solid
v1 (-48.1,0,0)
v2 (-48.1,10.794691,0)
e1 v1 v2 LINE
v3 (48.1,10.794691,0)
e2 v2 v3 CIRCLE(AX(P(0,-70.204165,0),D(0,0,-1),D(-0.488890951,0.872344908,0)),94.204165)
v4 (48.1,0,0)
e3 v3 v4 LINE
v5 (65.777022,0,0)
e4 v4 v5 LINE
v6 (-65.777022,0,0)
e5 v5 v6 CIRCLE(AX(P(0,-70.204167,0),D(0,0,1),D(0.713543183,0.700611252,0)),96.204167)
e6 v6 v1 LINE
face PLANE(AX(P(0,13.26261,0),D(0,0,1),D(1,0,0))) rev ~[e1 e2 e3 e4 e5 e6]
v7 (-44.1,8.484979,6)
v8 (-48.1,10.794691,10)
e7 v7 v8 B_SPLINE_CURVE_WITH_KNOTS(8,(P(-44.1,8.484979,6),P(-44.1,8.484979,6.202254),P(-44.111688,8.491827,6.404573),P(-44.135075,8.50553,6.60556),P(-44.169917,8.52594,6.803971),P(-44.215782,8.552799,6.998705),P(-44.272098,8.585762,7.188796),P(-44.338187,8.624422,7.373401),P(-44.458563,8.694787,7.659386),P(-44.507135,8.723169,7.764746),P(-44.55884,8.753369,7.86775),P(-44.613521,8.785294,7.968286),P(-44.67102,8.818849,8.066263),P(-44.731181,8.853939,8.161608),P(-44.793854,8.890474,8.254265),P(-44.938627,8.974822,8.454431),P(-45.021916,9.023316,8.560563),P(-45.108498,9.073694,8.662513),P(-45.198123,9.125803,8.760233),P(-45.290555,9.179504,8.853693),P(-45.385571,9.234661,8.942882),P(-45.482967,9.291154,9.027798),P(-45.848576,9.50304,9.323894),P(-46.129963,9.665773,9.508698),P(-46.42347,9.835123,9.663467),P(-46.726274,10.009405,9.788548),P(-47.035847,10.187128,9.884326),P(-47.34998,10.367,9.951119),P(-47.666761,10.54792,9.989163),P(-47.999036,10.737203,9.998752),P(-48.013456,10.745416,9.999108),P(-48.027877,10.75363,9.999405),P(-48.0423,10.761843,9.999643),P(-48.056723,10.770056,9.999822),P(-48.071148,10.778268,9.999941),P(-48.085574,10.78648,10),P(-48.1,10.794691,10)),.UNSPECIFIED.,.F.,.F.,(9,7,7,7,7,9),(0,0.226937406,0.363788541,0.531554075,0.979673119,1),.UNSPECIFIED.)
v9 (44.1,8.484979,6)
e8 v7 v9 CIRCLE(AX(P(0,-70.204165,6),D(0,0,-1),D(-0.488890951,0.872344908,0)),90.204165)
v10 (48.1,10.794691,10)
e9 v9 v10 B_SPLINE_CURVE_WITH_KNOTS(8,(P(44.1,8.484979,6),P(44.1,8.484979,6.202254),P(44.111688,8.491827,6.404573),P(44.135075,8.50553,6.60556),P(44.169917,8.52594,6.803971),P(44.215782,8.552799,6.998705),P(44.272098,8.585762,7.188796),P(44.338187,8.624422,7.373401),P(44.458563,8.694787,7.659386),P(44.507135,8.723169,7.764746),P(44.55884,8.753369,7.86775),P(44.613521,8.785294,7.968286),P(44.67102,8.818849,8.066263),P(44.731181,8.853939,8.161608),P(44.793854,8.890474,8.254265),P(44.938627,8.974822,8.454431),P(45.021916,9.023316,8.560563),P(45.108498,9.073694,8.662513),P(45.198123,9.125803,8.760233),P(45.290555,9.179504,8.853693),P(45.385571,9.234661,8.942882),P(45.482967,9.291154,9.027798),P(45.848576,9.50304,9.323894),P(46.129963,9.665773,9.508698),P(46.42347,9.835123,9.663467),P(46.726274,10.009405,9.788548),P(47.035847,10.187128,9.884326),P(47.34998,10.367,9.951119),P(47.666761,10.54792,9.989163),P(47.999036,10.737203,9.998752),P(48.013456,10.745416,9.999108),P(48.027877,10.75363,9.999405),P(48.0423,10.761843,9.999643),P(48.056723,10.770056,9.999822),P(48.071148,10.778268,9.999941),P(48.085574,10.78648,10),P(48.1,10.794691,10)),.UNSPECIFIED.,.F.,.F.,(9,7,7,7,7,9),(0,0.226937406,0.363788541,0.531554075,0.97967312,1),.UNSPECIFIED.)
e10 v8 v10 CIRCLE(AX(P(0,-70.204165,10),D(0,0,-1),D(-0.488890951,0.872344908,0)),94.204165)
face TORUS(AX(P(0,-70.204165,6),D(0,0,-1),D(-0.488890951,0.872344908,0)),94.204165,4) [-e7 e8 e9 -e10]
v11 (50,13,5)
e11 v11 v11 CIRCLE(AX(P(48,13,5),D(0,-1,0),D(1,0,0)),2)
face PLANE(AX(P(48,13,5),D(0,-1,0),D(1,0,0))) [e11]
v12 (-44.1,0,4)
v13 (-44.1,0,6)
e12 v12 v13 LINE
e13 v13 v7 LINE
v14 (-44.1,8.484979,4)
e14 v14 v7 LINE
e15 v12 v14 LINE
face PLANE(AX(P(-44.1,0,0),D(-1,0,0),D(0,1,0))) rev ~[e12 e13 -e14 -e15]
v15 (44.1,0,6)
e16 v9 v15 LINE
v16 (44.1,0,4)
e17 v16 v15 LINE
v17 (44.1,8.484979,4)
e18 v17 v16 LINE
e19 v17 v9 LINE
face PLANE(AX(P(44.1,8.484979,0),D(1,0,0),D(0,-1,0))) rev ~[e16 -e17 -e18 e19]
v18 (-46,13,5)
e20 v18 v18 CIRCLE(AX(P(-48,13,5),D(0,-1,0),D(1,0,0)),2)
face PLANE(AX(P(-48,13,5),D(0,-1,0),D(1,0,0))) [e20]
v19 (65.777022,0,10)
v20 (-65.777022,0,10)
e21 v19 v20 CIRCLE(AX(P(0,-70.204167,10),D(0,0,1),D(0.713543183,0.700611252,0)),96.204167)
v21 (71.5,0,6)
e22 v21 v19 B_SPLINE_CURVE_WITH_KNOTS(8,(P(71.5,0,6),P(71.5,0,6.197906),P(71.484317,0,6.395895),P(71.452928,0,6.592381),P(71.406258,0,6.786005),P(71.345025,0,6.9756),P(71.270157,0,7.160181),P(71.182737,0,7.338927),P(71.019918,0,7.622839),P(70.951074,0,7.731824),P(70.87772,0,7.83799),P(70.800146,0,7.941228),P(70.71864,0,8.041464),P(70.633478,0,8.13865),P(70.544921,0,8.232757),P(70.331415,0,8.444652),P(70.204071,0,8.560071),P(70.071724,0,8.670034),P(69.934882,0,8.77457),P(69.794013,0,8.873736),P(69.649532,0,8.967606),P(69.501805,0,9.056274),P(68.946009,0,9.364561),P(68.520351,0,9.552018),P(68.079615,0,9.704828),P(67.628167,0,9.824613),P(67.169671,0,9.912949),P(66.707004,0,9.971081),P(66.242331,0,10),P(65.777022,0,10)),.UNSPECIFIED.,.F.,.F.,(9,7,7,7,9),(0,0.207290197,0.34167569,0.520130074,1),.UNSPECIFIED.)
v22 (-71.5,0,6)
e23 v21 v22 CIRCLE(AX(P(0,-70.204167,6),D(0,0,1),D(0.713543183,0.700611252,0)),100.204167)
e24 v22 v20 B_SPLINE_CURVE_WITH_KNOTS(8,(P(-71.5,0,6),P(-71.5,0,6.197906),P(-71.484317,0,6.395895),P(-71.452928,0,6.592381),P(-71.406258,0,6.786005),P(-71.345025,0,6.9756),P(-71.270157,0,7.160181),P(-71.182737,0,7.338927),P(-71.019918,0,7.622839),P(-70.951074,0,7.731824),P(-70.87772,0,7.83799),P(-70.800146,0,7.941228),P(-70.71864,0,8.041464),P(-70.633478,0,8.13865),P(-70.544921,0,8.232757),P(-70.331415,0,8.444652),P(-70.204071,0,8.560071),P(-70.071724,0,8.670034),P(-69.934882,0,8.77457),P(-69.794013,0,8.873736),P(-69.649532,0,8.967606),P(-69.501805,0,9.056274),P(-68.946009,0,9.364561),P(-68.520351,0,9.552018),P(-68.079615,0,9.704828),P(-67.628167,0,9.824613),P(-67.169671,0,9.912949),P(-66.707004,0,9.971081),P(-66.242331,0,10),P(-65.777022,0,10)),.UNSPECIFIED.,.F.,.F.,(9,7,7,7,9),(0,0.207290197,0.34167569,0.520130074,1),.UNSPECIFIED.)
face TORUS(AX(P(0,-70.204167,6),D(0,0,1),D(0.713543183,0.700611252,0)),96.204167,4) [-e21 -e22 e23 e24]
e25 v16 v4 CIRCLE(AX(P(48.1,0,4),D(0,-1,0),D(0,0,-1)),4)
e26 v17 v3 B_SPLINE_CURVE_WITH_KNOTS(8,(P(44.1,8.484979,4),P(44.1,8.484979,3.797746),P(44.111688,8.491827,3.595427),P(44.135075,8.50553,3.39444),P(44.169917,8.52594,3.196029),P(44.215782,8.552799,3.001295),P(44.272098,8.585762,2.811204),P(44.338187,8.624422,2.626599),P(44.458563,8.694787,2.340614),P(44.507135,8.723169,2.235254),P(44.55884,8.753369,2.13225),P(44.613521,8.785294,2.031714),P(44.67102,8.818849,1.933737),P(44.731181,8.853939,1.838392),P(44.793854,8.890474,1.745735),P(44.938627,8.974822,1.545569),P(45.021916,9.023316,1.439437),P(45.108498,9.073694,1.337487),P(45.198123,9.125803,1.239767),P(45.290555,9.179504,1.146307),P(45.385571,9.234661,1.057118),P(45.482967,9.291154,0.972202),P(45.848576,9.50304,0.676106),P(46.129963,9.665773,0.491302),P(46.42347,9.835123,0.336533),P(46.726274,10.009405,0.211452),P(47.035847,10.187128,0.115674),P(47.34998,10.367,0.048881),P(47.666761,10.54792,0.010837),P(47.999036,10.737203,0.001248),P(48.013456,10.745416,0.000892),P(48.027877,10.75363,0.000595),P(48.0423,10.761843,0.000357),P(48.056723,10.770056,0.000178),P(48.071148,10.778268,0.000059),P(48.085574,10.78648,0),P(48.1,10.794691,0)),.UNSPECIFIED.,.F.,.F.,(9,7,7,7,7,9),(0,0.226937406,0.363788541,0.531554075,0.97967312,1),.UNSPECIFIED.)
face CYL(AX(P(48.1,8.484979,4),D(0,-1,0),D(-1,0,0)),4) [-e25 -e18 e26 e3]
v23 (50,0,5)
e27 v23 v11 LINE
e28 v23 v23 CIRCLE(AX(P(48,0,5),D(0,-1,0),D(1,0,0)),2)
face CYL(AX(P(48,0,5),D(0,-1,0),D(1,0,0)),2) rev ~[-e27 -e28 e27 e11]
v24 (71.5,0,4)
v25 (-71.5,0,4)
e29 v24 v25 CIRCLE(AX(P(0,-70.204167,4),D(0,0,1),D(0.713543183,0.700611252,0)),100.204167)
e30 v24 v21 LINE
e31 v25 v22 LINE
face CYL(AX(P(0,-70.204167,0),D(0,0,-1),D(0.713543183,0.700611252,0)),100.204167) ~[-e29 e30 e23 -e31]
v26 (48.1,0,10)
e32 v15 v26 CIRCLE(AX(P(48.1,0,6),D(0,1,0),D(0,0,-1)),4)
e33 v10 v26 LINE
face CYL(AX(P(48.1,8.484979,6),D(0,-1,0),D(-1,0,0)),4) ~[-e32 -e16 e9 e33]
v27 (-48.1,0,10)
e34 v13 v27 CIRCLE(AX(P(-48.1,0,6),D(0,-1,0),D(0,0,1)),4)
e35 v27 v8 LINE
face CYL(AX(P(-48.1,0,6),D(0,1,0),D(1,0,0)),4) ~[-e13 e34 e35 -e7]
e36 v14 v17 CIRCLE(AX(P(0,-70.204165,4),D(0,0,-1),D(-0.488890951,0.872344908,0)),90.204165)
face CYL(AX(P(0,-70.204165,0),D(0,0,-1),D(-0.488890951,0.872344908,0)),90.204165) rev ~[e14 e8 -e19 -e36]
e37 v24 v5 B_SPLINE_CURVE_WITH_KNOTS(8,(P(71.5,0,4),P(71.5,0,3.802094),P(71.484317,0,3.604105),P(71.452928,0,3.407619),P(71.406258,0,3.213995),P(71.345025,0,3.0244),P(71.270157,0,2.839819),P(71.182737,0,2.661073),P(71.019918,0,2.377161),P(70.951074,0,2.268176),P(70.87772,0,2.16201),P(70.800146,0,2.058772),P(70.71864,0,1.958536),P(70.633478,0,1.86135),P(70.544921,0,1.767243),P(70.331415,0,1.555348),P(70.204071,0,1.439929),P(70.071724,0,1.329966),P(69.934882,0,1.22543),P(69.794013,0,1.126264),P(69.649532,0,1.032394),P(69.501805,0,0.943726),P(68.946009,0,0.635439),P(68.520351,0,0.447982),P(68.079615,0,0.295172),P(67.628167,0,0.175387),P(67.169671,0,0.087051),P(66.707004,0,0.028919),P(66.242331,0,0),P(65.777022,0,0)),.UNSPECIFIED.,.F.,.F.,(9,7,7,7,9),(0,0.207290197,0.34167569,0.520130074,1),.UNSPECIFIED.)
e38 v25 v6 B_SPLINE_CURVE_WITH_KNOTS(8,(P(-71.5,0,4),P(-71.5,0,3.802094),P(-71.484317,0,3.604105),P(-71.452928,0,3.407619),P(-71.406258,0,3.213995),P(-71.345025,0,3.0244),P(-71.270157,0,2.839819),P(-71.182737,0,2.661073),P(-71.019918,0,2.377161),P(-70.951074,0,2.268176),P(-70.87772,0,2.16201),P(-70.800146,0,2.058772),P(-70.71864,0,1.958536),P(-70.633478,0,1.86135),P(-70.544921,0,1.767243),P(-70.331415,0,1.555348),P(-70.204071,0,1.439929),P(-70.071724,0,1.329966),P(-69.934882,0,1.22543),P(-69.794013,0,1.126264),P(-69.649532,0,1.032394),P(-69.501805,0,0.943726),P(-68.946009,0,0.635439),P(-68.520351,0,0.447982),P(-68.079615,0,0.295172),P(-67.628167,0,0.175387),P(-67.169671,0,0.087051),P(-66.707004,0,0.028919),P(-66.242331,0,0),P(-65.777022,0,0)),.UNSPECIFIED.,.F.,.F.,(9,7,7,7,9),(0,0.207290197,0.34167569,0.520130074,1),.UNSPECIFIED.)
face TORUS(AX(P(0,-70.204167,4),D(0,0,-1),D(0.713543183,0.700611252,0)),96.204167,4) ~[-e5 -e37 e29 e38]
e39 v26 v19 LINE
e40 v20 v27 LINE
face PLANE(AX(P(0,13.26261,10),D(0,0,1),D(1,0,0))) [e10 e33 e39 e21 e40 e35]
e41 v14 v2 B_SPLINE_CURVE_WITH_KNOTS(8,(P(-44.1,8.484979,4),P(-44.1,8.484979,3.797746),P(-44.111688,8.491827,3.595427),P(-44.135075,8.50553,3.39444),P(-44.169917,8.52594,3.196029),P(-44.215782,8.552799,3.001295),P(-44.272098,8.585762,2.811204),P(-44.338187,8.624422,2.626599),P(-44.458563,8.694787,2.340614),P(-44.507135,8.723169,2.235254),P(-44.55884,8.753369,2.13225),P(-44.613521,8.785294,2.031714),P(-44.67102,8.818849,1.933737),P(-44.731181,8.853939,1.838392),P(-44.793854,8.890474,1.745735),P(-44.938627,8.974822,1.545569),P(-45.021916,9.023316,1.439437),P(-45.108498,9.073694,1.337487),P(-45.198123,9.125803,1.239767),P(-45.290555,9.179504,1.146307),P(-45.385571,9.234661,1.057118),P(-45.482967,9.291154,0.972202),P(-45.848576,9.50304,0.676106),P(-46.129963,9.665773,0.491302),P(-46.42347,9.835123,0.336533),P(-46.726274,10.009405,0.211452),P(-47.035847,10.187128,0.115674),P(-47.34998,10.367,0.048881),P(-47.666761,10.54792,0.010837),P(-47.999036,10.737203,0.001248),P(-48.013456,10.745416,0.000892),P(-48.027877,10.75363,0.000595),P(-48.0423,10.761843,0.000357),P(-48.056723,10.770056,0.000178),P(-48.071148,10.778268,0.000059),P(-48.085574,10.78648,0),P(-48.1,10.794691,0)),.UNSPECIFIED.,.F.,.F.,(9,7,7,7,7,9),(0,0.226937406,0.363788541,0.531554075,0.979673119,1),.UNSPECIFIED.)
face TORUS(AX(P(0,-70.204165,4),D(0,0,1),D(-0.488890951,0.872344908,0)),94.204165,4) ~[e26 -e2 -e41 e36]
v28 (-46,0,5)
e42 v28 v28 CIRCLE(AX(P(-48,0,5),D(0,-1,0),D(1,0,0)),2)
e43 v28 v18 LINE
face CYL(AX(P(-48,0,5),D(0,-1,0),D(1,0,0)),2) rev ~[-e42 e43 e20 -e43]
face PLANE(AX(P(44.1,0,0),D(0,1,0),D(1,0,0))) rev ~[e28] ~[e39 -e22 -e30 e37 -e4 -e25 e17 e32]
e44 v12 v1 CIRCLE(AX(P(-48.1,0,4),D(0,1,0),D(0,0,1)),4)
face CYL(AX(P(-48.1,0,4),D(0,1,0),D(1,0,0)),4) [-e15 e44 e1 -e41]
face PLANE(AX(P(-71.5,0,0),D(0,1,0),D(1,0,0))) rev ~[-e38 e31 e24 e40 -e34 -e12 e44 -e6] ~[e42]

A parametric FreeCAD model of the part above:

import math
import FreeCAD as App
import Part
import Sketcher
from FreeCAD import Vector


def edges_at(feature, points):
    """Names of the edges that pass closest to the given points."""
    edges = feature.Shape.Edges
    near = lambda p: min(range(len(edges)), key=lambda i: edges[i].distToShape(Part.Vertex(*p))[0])
    return sorted({f"Edge{near(p) + 1}" for p in points})

doc = App.newDocument("Part")
body = doc.addObject("PartDesign::Body", "Body")

sketch1 = body.newObject("Sketcher::SketchObject", "Sketch")
sketch1.AttachmentSupport = (doc.getObject("XY_Plane"), [""])
sketch1.MapMode = "FlatFace"
sketch1.addGeometry([
    Part.LineSegment(Vector(44, 0, 0), Vector(72, 0, 0)),
    Part.ArcOfCircle(Part.Circle(Vector(0, -70, 0), Vector(0, 0, 1), 100), math.radians(44), math.radians(136)),
    Part.LineSegment(Vector(-72, 0, 0), Vector(-44, 0, 0)),
    Part.LineSegment(Vector(-44, 0, 0), Vector(-44, 8, 0)),
    Part.ArcOfCircle(Part.Circle(Vector(0, -70, 0), Vector(0, 0, 1), 90), math.radians(61), math.radians(119)),
    Part.LineSegment(Vector(44, 8, 0), Vector(44, 0, 0)),
], False)
sketch1.addConstraint([
    Sketcher.Constraint("Coincident", 0, 2, 1, 1),
    Sketcher.Constraint("Coincident", 1, 2, 2, 1),
    Sketcher.Constraint("Coincident", 2, 2, 3, 1),
    Sketcher.Constraint("Coincident", 3, 2, 4, 2),
    Sketcher.Constraint("Coincident", 4, 1, 5, 1),
    Sketcher.Constraint("Coincident", 5, 2, 0, 1),
    Sketcher.Constraint("Horizontal", 0),
    Sketcher.Constraint("Horizontal", 2),
    Sketcher.Constraint("Vertical", 3),
    Sketcher.Constraint("Vertical", 5),
    Sketcher.Constraint("Coincident", 4, 3, 1, 3),
    Sketcher.Constraint("Symmetric", 0, 2, 1, 2, -1, 1),
    Sketcher.Constraint("Symmetric", 3, 2, 4, 1, -2),
    Sketcher.Constraint("DistanceX", 0, 1, 0, 2, 27.4),
    Sketcher.Constraint("DistanceX", 1, 2, 0, 2, 143.0),
    Sketcher.Constraint("Radius", 1, 100.204167),
    Sketcher.Constraint("Radius", 4, 90.204165),
])
pad1 = body.newObject("PartDesign::Pad", "Pad")
pad1.Profile = sketch1
pad1.Length = 10
doc.recompute()

fillet = body.newObject("PartDesign::Fillet", "Fillet")
fillet.Base = (pad1, edges_at(pad1, [
    (0, 20, 10),
    (0, 30, 10),
    (0, 20, 0),
    (0, 30, 0),
    (-44.1, 4.242, 0),
    (-44.1, 4.242, 10),
    (44.1, 4.242, 0),
    (44.1, 4.242, 10),
]))
fillet.Radius = 4

sketch2 = body.newObject("Sketcher::SketchObject", "Sketch001")
sketch2.AttachmentSupport = (doc.getObject("XZ_Plane"), [""])
sketch2.MapMode = "FlatFace"
sketch2.addGeometry([
    Part.Circle(Vector(48, 5, 0), Vector(0, 0, 1), 2),
    Part.Circle(Vector(-48, 5, 0), Vector(0, 0, 1), 2),
], False)
sketch2.addConstraint([
    Sketcher.Constraint("Equal", 0, 1),
    Sketcher.Constraint("Symmetric", 0, 3, 1, 3, -2),
    Sketcher.Constraint("Diameter", 0, 4.0),
    Sketcher.Constraint("DistanceX", -1, 1, 0, 3, 48.0),
    Sketcher.Constraint("DistanceY", -1, 1, 0, 3, 5.0),
])
pocket1 = body.newObject("PartDesign::Pocket", "Pocket")
pocket1.Profile = sketch2
pocket1.Length = 13

doc.recompute()
